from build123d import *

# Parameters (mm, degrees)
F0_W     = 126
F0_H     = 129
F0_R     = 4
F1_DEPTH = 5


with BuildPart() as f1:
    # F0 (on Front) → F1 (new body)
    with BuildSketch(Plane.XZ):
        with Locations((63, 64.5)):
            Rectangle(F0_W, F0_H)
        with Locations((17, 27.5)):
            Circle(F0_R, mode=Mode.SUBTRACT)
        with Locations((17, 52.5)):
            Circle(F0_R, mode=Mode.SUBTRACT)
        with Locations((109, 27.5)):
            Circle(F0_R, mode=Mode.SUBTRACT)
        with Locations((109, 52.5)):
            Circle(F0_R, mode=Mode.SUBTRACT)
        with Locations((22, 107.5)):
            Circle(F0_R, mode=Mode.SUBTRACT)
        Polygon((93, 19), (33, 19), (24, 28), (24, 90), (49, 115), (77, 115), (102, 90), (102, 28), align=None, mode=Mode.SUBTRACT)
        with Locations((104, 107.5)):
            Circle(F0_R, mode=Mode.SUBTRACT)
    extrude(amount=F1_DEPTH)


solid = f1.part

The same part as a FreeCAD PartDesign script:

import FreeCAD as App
import Part
import Sketcher
from FreeCAD import Vector


def add_polygon(sketch, points):
    """Adds a closed chain of lines whose ends are joined by coincident constraints."""
    first, n = sketch.GeometryCount, len(points)
    for a, b in zip(points, points[1:] + points[:1]):
        sketch.addGeometry(Part.LineSegment(App.Vector(*a, 0), App.Vector(*b, 0)), False)
    for i in range(n):
        sketch.addConstraint(Sketcher.Constraint("Coincident", first + i, 2, first + (i + 1) % n, 1))

doc = App.newDocument("Part")
params = doc.addObject("Spreadsheet::Sheet", "Params")
for row, (alias, value) in enumerate([
    ("sketch1_diameter", "8 mm"),
    ("sketch1_width", "126 mm"),
    ("sketch1_width2", "60 mm"),
    ("sketch1_width3", "28 mm"),
    ("sketch1_height", "129 mm"),
    ("pad1_length", "5 mm"),
], start=1):
    params.set(f"A{row}", alias)
    params.set(f"B{row}", "=" + value)
    params.setAlias(f"B{row}", alias)

body = doc.addObject("PartDesign::Body", "Body")

# Sketch on XZ plane
sketch1 = doc.addObject("Sketcher::SketchObject", "Sketch")
body.addObject(sketch1)
sketch1.AttachmentSupport = (doc.XZ_Plane, [""])
sketch1.MapMode = "FlatFace"
add_polygon(sketch1, [(0, 129), (0, 0), (126, 0), (126, 129)])  # lines 0-3
sketch1.addGeometry(Part.Circle(Vector(17, 27.5, 0), Vector(0, 0, 1), 4), False)  # 4
sketch1.addGeometry(Part.Circle(Vector(17, 52.5, 0), Vector(0, 0, 1), 4), False)  # 5
sketch1.addGeometry(Part.Circle(Vector(109, 27.5, 0), Vector(0, 0, 1), 4), False)  # 6
sketch1.addGeometry(Part.Circle(Vector(109, 52.5, 0), Vector(0, 0, 1), 4), False)  # 7
sketch1.addGeometry(Part.Circle(Vector(22, 107.5, 0), Vector(0, 0, 1), 4), False)  # 8
add_polygon(sketch1, [(102, 28), (93, 19), (33, 19), (24, 28), (24, 90), (49, 115), (77, 115), (102, 90)])  # lines 9-16
sketch1.addGeometry(Part.Circle(Vector(104, 107.5, 0), Vector(0, 0, 1), 4), False)  # 17
sketch1.addConstraint(Sketcher.Constraint("Vertical", 0))
sketch1.addConstraint(Sketcher.Constraint("Horizontal", 1))
sketch1.addConstraint(Sketcher.Constraint("Vertical", 2))
sketch1.addConstraint(Sketcher.Constraint("Horizontal", 3))
sketch1.addConstraint(Sketcher.Constraint("Horizontal", 10))
sketch1.addConstraint(Sketcher.Constraint("Vertical", 12))
sketch1.addConstraint(Sketcher.Constraint("Horizontal", 14))
sketch1.addConstraint(Sketcher.Constraint("Vertical", 16))
sketch1.addConstraint(Sketcher.Constraint("Coincident", 0, 2, -1, 1))
sketch1.addConstraint(Sketcher.Constraint("Equal", 4, 5))
sketch1.addConstraint(Sketcher.Constraint("Equal", 5, 6))
sketch1.addConstraint(Sketcher.Constraint("Equal", 6, 7))
sketch1.addConstraint(Sketcher.Constraint("Equal", 7, 8))
sketch1.addConstraint(Sketcher.Constraint("Equal", 8, 17))
sketch1.addConstraint(Sketcher.Constraint("Perpendicular", 9, 11))
sketch1.addConstraint(Sketcher.Constraint("Perpendicular", 11, 13))
sketch1.addConstraint(Sketcher.Constraint("Perpendicular", 13, 15))
sketch1.addConstraint(Sketcher.Constraint("Horizontal", 4, 3, 6, 3))
sketch1.addConstraint(Sketcher.Constraint("Horizontal", 5, 3, 7, 3))
sketch1.addConstraint(Sketcher.Constraint("Horizontal", 8, 3, 17, 3))
sketch1.addConstraint(Sketcher.Constraint("Horizontal", 12, 2, 15, 2))
sketch1.addConstraint(Sketcher.Constraint("Horizontal", 11, 2, 16, 2))
sketch1.addConstraint(Sketcher.Constraint("Vertical", 4, 3, 5, 3))
sketch1.addConstraint(Sketcher.Constraint("Vertical", 6, 3, 7, 3))
sketch1.addConstraint(Sketcher.Constraint("Equal", 9, 11))
sketch1.addConstraint(Sketcher.Constraint("Diameter", 4, 8.0))
sketch1.addConstraint(Sketcher.Constraint("DistanceX", 1, 1, 1, 2, 126.0))
sketch1.addConstraint(Sketcher.Constraint("DistanceX", 10, 2, 10, 1, 60.0))
sketch1.addConstraint(Sketcher.Constraint("DistanceX", 14, 1, 14, 2, 28.0))
sketch1.addConstraint(Sketcher.Constraint("DistanceY", 0, 2, 0, 1, 129.0))
sketch1.addConstraint(Sketcher.Constraint("DistanceY", 12, 1, 12, 2, 62.0))
sketch1.addConstraint(Sketcher.Constraint("DistanceX", -1, 1, 4, 3, 17.0))
sketch1.addConstraint(Sketcher.Constraint("DistanceX", -1, 1, 6, 3, 109.0))
sketch1.addConstraint(Sketcher.Constraint("DistanceX", -1, 1, 8, 3, 22.0))
sketch1.addConstraint(Sketcher.Constraint("DistanceX", -1, 1, 17, 3, 104.0))
sketch1.addConstraint(Sketcher.Constraint("DistanceX", -1, 1, 9, 2, 93.0))
sketch1.addConstraint(Sketcher.Constraint("DistanceY", -1, 1, 9, 2, 19.0))
sketch1.addConstraint(Sketcher.Constraint("DistanceX", -1, 1, 11, 2, 24.0))
sketch1.addConstraint(Sketcher.Constraint("DistanceY", 4, 3, 5, 3, 25.0))
sketch1.addConstraint(Sketcher.Constraint("DistanceY", 5, 3, 8, 3, 55.0))
sketch1.addConstraint(Sketcher.Constraint("DistanceY", -1, 1, 4, 3, 27.5))
sketch1.setExpression("Constraints[37]", "Params.sketch1_diameter")
sketch1.setExpression("Constraints[38]", "Params.sketch1_width")
sketch1.setExpression("Constraints[39]", "Params.sketch1_width2")
sketch1.setExpression("Constraints[40]", "Params.sketch1_width3")
sketch1.setExpression("Constraints[41]", "Params.sketch1_height")
pad1 = doc.addObject("PartDesign::Pad", "Pad")
body.addObject(pad1)
pad1.Profile = sketch1
pad1.setExpression("Length", "Params.pad1_length")

doc.recompute()
